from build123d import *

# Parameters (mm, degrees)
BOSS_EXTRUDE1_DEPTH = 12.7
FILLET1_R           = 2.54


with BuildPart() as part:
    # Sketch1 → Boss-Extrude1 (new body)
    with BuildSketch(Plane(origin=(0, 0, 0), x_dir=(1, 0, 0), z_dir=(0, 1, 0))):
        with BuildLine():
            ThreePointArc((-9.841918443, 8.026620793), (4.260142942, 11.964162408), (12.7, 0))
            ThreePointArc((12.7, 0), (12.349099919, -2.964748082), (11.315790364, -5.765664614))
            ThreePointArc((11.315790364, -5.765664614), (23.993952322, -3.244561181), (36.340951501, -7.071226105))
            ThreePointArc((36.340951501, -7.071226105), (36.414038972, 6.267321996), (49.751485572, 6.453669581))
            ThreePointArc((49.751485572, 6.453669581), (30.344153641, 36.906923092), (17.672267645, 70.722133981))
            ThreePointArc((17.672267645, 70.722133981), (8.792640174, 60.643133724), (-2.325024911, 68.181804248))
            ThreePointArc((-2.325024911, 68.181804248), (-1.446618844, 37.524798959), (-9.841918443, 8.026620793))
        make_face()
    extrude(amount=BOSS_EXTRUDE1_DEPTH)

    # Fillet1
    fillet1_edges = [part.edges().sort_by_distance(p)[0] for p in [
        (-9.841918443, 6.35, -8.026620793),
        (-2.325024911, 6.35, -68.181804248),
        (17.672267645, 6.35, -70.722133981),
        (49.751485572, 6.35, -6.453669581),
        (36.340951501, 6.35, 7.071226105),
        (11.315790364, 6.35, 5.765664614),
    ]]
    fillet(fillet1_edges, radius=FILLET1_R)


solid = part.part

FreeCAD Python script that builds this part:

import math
import FreeCAD as App
import Part
import Sketcher
from FreeCAD import Vector
Q = App.Units.Quantity


def edges_at(feature, points):
    """Names of the edges that pass closest to the given points."""
    edges = feature.Shape.Edges
    near = lambda p: min(range(len(edges)), key=lambda i: edges[i].distToShape(Part.Vertex(*p))[0])
    return sorted({f"Edge{near(p) + 1}" for p in points})

doc = App.newDocument("Part")
body = doc.addObject("PartDesign::Body", "Body")

sketch1 = body.newObject("Sketcher::SketchObject", "Sketch")
sketch1.AttachmentSupport = (doc.getObject("XZ_Plane"), [""])
sketch1.MapMode = "FlatFace"
sketch1.addGeometry([
    Part.ArcOfCircle(Part.Circle(Vector(0, 0, 0), Vector(0, 0, 1), 12.7), math.radians(-140.800881), math.radians(0)),
    Part.ArcOfCircle(Part.Circle(Vector(0, 0, 0), Vector(0, 0, 1), 12.7), math.radians(0), math.radians(26.999925)),
    Part.ArcOfCircle(Part.Circle(Vector(22.624415, 29.496025, 0), Vector(0, 0, 1), 26.287164), math.radians(-115.479979), math.radians(-58.5472)),
    Part.ArcOfCircle(Part.Circle(Vector(43.177766, 0.439214, 0), Vector(0, 0, 1), 9.525), math.radians(135.871152), math.radians(313.642322)),
    Part.ArcOfCircle(Part.Circle(Vector(185.337668, -114.271005, 0), Vector(0, 0, 1), 173.228724), math.radians(141.508486), math.radians(165.439911)),
    Part.ArcOfCircle(Part.Circle(Vector(7.512268, -70.722134, 0), Vector(0, 0, 1), 10.16), math.radians(0), math.radians(165.520567)),
    Part.ArcOfCircle(Part.Circle(Vector(-101.316289, -50.00435, 0), Vector(0, 0, 1), 100.646362), math.radians(-10.405128), math.radians(24.650463)),
], False)
sketch1.addConstraint([
    Sketcher.Constraint("Coincident", 0, 2, 1, 1),
    Sketcher.Constraint("Coincident", 1, 2, 2, 1),
    Sketcher.Constraint("Coincident", 2, 2, 3, 1),
    Sketcher.Constraint("Coincident", 3, 2, 4, 1),
    Sketcher.Constraint("Coincident", 4, 2, 5, 1),
    Sketcher.Constraint("Coincident", 5, 2, 6, 1),
    Sketcher.Constraint("Coincident", 6, 2, 0, 1),
    Sketcher.Constraint("Coincident", 0, 3, -1, 1),
    Sketcher.Constraint("Coincident", 1, 3, -1, 1),
    Sketcher.Constraint("PointOnObject", 0, 2, -1),
    Sketcher.Constraint("Radius", 0, Q("0.5 in")),
    Sketcher.Constraint("Radius", 5, Q("0.4 in")),
    Sketcher.Constraint("Radius", 3, Q("0.375 in")),
    Sketcher.Constraint("DistanceX", 5, 3, 4, 3, Q("7.001 in")),
    Sketcher.Constraint("Radius", 2, 26.287164),
    Sketcher.Constraint("Radius", 4, 173.228724),
    Sketcher.Constraint("Radius", 6, 100.646362),
    Sketcher.Constraint("DistanceY", 1, 2, 2, 2, Q("0.0514001 in")),
    Sketcher.Constraint("DistanceX", 3, 3, 4, 3, 142.159902),
    Sketcher.Constraint("DistanceY", 2, 2, 2, 3, 22.424799),
    Sketcher.Constraint("DistanceX", -1, 1, 4, 3, 185.337668),
    Sketcher.Constraint("DistanceX", 6, 3, -1, 1, 101.316289),
    Sketcher.Constraint("DistanceY", 6, 3, -1, 1, 50.00435),
    Sketcher.Constraint("DistanceX", -1, 1, 1, 2, 11.31579),
    Sketcher.Constraint("DistanceY", 3, 2, -1, 1, 6.45367),
    Sketcher.Constraint("DistanceY", 5, 3, 2, 3, 100.218159),
])
pad1 = body.newObject("PartDesign::Pad", "Pad")
pad1.Profile = sketch1
pad1.Length = Q("0.5 in")
pad1.Reversed = True
doc.recompute()

fillet = body.newObject("PartDesign::Fillet", "Fillet")
fillet.Base = (pad1, edges_at(pad1, [
    (-9.842, 6.35, -8.027),
    (-2.325, 6.35, -68.182),
    (17.672, 6.35, -70.722),
    (49.751, 6.35, -6.454),
    (36.341, 6.35, 7.071),
    (11.316, 6.35, 5.766),
]))
fillet.Radius = Q("0.1 in")

doc.recompute()
